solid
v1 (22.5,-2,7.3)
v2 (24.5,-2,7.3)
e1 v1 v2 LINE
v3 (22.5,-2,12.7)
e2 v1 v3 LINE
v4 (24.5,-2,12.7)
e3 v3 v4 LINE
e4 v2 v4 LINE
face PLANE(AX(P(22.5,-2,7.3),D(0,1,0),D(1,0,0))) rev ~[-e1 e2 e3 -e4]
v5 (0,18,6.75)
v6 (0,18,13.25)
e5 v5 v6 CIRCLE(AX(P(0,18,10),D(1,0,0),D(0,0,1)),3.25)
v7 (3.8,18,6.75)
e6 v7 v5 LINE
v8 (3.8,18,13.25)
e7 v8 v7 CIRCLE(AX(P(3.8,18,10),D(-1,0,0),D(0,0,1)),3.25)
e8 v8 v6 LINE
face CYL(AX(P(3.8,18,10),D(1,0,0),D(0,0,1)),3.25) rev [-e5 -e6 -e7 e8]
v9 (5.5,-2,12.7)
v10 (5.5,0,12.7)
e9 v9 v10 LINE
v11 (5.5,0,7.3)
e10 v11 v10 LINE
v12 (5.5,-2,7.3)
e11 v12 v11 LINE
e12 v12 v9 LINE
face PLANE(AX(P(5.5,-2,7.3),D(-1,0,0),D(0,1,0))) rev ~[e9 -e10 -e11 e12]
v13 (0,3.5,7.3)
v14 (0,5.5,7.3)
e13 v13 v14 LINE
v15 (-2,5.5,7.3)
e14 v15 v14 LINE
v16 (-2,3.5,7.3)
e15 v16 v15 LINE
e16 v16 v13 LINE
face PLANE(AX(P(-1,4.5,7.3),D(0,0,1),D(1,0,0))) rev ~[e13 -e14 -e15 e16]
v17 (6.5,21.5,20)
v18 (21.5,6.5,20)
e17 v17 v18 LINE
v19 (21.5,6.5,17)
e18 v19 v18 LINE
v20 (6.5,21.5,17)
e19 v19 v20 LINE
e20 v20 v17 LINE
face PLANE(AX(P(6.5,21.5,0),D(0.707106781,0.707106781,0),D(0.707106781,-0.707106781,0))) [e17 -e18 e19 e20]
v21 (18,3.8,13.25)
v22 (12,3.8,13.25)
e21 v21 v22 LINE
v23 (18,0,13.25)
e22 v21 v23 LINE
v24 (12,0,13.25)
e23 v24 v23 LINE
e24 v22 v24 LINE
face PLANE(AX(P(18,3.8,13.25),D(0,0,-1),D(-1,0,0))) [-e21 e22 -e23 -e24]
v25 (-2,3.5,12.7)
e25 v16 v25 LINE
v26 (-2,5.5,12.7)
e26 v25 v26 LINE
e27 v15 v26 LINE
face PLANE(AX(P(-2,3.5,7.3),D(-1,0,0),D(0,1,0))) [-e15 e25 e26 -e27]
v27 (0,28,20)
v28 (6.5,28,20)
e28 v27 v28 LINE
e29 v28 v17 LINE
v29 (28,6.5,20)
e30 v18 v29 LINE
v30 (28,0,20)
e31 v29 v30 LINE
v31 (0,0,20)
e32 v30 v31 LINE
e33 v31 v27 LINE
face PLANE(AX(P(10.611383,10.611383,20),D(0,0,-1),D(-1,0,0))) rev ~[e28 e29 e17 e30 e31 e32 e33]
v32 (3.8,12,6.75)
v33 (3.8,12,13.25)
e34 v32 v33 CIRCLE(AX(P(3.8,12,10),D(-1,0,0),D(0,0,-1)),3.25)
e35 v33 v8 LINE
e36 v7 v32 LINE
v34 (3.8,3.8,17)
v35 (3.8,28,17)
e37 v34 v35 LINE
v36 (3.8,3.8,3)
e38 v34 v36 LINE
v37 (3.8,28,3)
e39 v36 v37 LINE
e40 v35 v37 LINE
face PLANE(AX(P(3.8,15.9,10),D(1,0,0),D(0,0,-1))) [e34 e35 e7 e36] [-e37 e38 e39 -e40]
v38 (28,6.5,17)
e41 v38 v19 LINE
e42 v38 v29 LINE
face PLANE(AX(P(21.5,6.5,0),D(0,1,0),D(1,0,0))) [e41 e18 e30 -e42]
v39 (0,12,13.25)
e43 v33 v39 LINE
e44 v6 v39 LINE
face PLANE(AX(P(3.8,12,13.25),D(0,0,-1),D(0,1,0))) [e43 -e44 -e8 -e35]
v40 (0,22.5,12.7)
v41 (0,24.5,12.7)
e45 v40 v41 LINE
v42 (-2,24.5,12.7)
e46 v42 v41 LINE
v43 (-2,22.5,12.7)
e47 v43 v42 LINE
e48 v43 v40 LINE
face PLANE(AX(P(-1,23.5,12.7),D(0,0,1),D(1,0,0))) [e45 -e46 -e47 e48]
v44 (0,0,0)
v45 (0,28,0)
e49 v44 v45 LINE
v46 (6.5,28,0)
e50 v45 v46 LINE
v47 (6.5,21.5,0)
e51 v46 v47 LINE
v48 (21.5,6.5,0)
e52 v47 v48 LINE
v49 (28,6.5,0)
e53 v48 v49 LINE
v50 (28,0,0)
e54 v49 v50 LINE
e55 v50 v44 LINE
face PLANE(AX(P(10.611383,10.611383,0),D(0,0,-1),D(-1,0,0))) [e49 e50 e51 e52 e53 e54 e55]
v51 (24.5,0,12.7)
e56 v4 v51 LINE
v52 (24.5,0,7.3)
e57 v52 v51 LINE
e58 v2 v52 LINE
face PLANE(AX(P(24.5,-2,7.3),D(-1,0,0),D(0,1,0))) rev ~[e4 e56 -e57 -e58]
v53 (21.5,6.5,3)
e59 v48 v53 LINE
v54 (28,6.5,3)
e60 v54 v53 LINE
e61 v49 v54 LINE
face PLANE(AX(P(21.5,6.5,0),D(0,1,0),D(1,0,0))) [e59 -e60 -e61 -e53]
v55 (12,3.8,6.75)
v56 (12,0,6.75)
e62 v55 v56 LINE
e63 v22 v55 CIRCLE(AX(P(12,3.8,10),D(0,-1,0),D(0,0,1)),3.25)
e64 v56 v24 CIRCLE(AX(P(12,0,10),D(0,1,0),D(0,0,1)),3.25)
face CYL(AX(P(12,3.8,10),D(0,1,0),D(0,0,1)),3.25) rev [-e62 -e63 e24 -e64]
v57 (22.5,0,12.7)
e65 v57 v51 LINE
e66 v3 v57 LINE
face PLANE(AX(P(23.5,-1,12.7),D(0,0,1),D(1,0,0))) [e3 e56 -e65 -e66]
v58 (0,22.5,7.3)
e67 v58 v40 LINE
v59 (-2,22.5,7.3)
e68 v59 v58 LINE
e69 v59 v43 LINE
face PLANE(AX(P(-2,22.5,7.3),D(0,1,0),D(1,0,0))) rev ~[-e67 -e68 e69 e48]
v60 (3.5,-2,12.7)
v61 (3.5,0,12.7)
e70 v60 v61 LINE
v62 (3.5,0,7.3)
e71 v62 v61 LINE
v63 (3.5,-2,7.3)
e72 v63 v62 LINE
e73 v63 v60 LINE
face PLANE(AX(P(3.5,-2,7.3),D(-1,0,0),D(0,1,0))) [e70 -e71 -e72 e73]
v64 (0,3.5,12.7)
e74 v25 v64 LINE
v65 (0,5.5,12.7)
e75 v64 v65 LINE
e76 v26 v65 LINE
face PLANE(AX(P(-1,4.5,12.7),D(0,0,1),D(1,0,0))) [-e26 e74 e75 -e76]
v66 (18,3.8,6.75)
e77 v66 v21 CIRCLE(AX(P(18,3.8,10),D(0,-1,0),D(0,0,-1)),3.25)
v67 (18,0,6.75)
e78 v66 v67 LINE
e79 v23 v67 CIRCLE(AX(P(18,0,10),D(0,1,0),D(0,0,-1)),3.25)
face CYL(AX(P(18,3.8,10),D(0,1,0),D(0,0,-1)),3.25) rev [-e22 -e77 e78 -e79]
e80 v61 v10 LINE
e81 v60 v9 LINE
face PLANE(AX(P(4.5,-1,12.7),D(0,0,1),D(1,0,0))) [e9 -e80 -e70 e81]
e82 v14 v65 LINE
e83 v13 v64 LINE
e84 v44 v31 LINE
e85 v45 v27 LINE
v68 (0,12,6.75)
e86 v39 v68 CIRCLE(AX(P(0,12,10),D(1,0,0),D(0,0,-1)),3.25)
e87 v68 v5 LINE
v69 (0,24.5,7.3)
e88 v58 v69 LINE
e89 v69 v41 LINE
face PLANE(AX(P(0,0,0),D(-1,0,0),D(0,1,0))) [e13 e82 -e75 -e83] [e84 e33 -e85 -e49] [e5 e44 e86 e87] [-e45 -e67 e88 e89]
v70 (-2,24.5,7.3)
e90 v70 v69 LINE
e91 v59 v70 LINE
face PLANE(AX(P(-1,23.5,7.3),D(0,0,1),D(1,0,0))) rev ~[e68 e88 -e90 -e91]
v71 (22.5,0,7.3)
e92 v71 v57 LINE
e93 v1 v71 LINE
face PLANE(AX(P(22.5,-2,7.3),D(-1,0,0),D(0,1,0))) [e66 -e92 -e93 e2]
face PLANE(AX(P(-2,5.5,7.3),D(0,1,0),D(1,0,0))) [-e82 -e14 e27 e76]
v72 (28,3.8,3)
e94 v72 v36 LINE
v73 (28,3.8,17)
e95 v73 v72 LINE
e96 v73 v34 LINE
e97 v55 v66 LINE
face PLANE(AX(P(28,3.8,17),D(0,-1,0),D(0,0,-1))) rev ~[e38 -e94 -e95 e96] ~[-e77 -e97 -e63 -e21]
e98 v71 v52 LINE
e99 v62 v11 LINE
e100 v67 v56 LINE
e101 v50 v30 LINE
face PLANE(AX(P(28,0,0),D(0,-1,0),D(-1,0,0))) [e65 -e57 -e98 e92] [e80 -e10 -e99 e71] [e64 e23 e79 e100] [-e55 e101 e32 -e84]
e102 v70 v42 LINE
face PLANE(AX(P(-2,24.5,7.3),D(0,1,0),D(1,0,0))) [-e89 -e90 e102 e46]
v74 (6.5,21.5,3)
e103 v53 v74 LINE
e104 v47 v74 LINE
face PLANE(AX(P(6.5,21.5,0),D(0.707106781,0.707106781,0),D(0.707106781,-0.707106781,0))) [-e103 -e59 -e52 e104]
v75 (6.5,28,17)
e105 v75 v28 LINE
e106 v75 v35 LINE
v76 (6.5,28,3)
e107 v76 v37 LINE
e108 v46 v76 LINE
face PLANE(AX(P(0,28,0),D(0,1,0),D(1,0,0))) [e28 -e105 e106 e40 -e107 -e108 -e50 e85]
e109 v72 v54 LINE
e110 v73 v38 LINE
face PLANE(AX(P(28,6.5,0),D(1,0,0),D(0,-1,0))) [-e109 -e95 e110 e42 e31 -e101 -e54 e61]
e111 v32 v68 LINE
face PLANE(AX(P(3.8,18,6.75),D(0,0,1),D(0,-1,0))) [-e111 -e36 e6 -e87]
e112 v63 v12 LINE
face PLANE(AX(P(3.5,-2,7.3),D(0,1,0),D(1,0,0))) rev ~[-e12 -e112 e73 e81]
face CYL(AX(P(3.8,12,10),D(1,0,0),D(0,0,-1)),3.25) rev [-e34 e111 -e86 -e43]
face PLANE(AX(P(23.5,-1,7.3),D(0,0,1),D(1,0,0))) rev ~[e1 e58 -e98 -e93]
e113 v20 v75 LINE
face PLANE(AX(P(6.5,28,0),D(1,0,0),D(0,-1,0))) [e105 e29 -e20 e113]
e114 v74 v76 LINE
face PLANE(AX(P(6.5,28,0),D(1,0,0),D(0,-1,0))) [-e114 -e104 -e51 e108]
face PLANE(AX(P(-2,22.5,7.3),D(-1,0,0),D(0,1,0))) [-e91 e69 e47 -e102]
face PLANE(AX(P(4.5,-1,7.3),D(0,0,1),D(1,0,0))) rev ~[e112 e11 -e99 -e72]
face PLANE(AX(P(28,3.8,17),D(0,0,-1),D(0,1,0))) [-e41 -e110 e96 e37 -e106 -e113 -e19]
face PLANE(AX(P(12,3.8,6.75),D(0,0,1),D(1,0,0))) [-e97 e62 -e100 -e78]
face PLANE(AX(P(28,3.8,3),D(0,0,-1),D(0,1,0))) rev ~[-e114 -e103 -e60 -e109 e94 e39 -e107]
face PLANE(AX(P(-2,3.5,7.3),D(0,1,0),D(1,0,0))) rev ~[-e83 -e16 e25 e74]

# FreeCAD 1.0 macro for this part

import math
import FreeCAD as App
import Part
import Sketcher

V = App.Vector
Q = App.Units.Quantity


def add_polygon(sketch, points):
    """Adds a closed chain of lines whose ends are joined by coincident constraints."""
    first, n = sketch.GeometryCount, len(points)
    for a, b in zip(points, points[1:] + points[:1]):
        sketch.addGeometry(Part.LineSegment(App.Vector(*a, 0), App.Vector(*b, 0)), False)
    for i in range(n):
        sketch.addConstraint(Sketcher.Constraint("Coincident", first + i, 2, first + (i + 1) % n, 1))

doc = App.newDocument("Part")
params = doc.addObject("Spreadsheet::Sheet", "Params")
for row, (alias, value) in enumerate([
    ("sketch1_width", "28 mm"),
    ("sketch1_width2", "6.5 mm"),
    ("pad1_length", "20 mm"),
    ("sketch2_height", "14 mm"),
    ("sketch2_width", "24.2 mm"),
    ("pocket1_length", "24.2 mm"),
    ("sketch3_width", "6 mm"),
    ("sketch3_radius", "3.25 mm"),
    ("sketch4_width", "6 mm"),
    ("sketch4_radius", "3.25 mm"),
    ("sketch5_width", "2 mm"),
    ("pad2_length", "2.7 mm"),
    ("pad2_length2", "2.7 mm"),
], start=1):
    params.set(f"A{row}", alias)
    params.set(f"B{row}", "=" + value)
    params.setAlias(f"B{row}", alias)

body = doc.addObject("PartDesign::Body", "Body")

# Sketch on XY plane
sketch1 = body.newObject("Sketcher::SketchObject", "Sketch")
sketch1.AttachmentSupport = (doc.getObject("XY_Plane"), [""])
sketch1.MapMode = "FlatFace"
add_polygon(sketch1, [(0, 28), (0, 0), (28, 0), (28, 6.5), (21.5, 6.5), (6.5, 21.5), (6.5, 28)])  # lines 0-6
sketch1.addConstraint([
    Sketcher.Constraint("Vertical", 0),
    Sketcher.Constraint("Horizontal", 1),
    Sketcher.Constraint("Vertical", 2),
    Sketcher.Constraint("Horizontal", 3),
    Sketcher.Constraint("Vertical", 5),
    Sketcher.Constraint("Horizontal", 6),
    Sketcher.Constraint("Coincident", 0, 2, -1, 1),
    Sketcher.Constraint("Equal", 3, 6),
    Sketcher.Constraint("Equal", 1, 0),
    Sketcher.Constraint("Equal", 6, 2),
    Sketcher.Constraint("Equal", 2, 5),
    Sketcher.Constraint("DistanceX", 1, 1, 1, 2, Q("28 mm")),
    Sketcher.Constraint("DistanceX", 3, 2, 3, 1, Q("6.5 mm")),
])
sketch1.setExpression("Constraints[18]", "Params.sketch1_width")
sketch1.setExpression("Constraints[19]", "Params.sketch1_width2")
pad1 = body.newObject("PartDesign::Pad", "Pad")
pad1.Profile = sketch1
pad1.setExpression("Length", "Params.pad1_length")

# Sketch on YZ plane
sketch2 = body.newObject("Sketcher::SketchObject", "Sketch001")
sketch2.AttachmentSupport = (doc.getObject("YZ_Plane"), [""])
sketch2.MapMode = "FlatFace"
sketch2.AttachmentOffset = App.Placement(V(0, 0, 28), App.Rotation())
add_polygon(sketch2, [(28, 17), (3.8, 17), (3.8, 3), (28, 3)])  # lines 0-3
sketch2.addConstraint([
    Sketcher.Constraint("Horizontal", 0),
    Sketcher.Constraint("Vertical", 1),
    Sketcher.Constraint("Horizontal", 2),
    Sketcher.Constraint("Vertical", 3),
    Sketcher.Constraint("DistanceY", 1, 2, 1, 1, Q("14 mm")),
    Sketcher.Constraint("DistanceX", 0, 2, 0, 1, Q("24.2 mm")),
    Sketcher.Constraint("DistanceY", -1, 1, 0, 2, Q("17 mm")),
    Sketcher.Constraint("DistanceX", -1, 1, 2, 2, Q("28 mm")),
])
sketch2.setExpression("Constraints[8]", "Params.sketch2_height")
sketch2.setExpression("Constraints[9]", "Params.sketch2_width")
pocket1 = body.newObject("PartDesign::Pocket", "Pocket")
pocket1.Profile = sketch2
pocket1.setExpression("Length", "Params.pocket1_length")

# Sketch on YZ plane
sketch3 = body.newObject("Sketcher::SketchObject", "Sketch002")
sketch3.AttachmentSupport = (doc.getObject("YZ_Plane"), [""])
sketch3.MapMode = "FlatFace"
sketch3.AttachmentOffset = App.Placement(V(0, 0, 3.8), App.Rotation())
sketch3.addGeometry([
    Part.LineSegment(V(12, 6.75, 0), V(18, 6.75, 0)),
    Part.ArcOfCircle(Part.Circle(V(18, 10, 0), V(0, 0, 1), 3.25), math.radians(-90), math.radians(90)),
    Part.LineSegment(V(18, 13.25, 0), V(12, 13.25, 0)),
    Part.ArcOfCircle(Part.Circle(V(12, 10, 0), V(0, 0, 1), 3.25), math.radians(90), math.radians(270)),
], False)
sketch3.addConstraint([
    Sketcher.Constraint("Tangent", 0, 2, 1, 1),
    Sketcher.Constraint("Tangent", 1, 2, 2, 1),
    Sketcher.Constraint("Tangent", 2, 2, 3, 1),
    Sketcher.Constraint("Tangent", 3, 2, 0, 1),
    Sketcher.Constraint("Horizontal", 0),
    Sketcher.Constraint("Horizontal", 2),
    Sketcher.Constraint("DistanceX", 0, 1, 0, 2, Q("6 mm")),
    Sketcher.Constraint("Radius", 1, Q("3.25 mm")),
    Sketcher.Constraint("DistanceX", -1, 1, 1, 3, Q("18 mm")),
    Sketcher.Constraint("DistanceY", -1, 1, 1, 3, Q("10 mm")),
])
sketch3.setExpression("Constraints[6]", "Params.sketch3_width")
sketch3.setExpression("Constraints[7]", "Params.sketch3_radius")
pocket2 = body.newObject("PartDesign::Pocket", "Pocket001")
pocket2.Profile = sketch3
pocket2.Type = "ThroughAll"

# Sketch on XZ plane
sketch4 = body.newObject("Sketcher::SketchObject", "Sketch003")
sketch4.AttachmentSupport = (doc.getObject("XZ_Plane"), [""])
sketch4.MapMode = "FlatFace"
sketch4.AttachmentOffset = App.Placement(V(0, 0, -3.8), App.Rotation())
sketch4.addGeometry([
    Part.LineSegment(V(18, 6.75, 0), V(12, 6.75, 0)),
    Part.ArcOfCircle(Part.Circle(V(12, 10, 0), V(0, 0, 1), 3.25), math.radians(90), math.radians(270)),
    Part.LineSegment(V(12, 13.25, 0), V(18, 13.25, 0)),
    Part.ArcOfCircle(Part.Circle(V(18, 10, 0), V(0, 0, 1), 3.25), math.radians(-90), math.radians(90)),
], False)
sketch4.addConstraint([
    Sketcher.Constraint("Tangent", 0, 2, 1, 2),
    Sketcher.Constraint("Tangent", 1, 1, 2, 1),
    Sketcher.Constraint("Tangent", 2, 2, 3, 2),
    Sketcher.Constraint("Tangent", 3, 1, 0, 1),
    Sketcher.Constraint("Horizontal", 0),
    Sketcher.Constraint("Horizontal", 2),
    Sketcher.Constraint("DistanceX", 0, 2, 0, 1, Q("6 mm")),
    Sketcher.Constraint("Radius", 1, Q("3.25 mm")),
    Sketcher.Constraint("DistanceX", -1, 1, 1, 3, Q("12 mm")),
    Sketcher.Constraint("DistanceY", -1, 1, 1, 3, Q("10 mm")),
])
sketch4.setExpression("Constraints[6]", "Params.sketch4_width")
sketch4.setExpression("Constraints[7]", "Params.sketch4_radius")
pocket3 = body.newObject("PartDesign::Pocket", "Pocket002")
pocket3.Profile = sketch4
pocket3.Type = "ThroughAll"
pocket3.Reversed = True

# Sketch on XY plane
sketch5 = body.newObject("Sketcher::SketchObject", "Sketch004")
sketch5.AttachmentSupport = (doc.getObject("XY_Plane"), [""])
sketch5.MapMode = "FlatFace"
sketch5.AttachmentOffset = App.Placement(V(0, 0, 10), App.Rotation())
add_polygon(sketch5, [(3.5, 0), (3.5, -2), (5.5, -2), (5.5, 0)])  # lines 0-3
add_polygon(sketch5, [(22.5, 0), (22.5, -2), (24.5, -2), (24.5, 0)])  # lines 4-7
add_polygon(sketch5, [(-2, 24.5), (-2, 22.5), (0, 22.5), (0, 24.5)])  # lines 8-11
add_polygon(sketch5, [(-2, 5.5), (-2, 3.5), (0, 3.5), (0, 5.5)])  # lines 12-15
sketch5.addConstraint([
    Sketcher.Constraint("Vertical", 0),
    Sketcher.Constraint("Horizontal", 1),
    Sketcher.Constraint("Vertical", 2),
    Sketcher.Constraint("Horizontal", 3),
    Sketcher.Constraint("Vertical", 4),
    Sketcher.Constraint("Horizontal", 5),
    Sketcher.Constraint("Vertical", 6),
    Sketcher.Constraint("Horizontal", 7),
    Sketcher.Constraint("Vertical", 8),
    Sketcher.Constraint("Horizontal", 9),
    Sketcher.Constraint("Vertical", 10),
    Sketcher.Constraint("Horizontal", 11),
    Sketcher.Constraint("Vertical", 12),
    Sketcher.Constraint("Horizontal", 13),
    Sketcher.Constraint("Vertical", 14),
    Sketcher.Constraint("Horizontal", 15),
    Sketcher.Constraint("PointOnObject", 2, 2, -1),
    Sketcher.Constraint("PointOnObject", 6, 2, -1),
    Sketcher.Constraint("PointOnObject", 9, 2, -2),
    Sketcher.Constraint("PointOnObject", 13, 2, -2),
    Sketcher.Constraint("Horizontal", 1, 2, 4, 2),
    Sketcher.Constraint("Vertical", 11, 2, 12, 2),
    Sketcher.Constraint("Equal", 3, 5),
    Sketcher.Constraint("Equal", 7, 9),
    Sketcher.Constraint("Equal", 15, 0),
    Sketcher.Constraint("Equal", 6, 8),
    Sketcher.Constraint("Equal", 10, 12),
    Sketcher.Constraint("DistanceX", 1, 1, 1, 2, Q("2 mm")),
    Sketcher.Constraint("DistanceX", 1, 2, 4, 2, Q("17 mm")),
    Sketcher.Constraint("DistanceY", 12, 2, 8, 2, Q("19 mm")),
    Sketcher.Constraint("DistanceX", -1, 1, 0, 2, Q("3.5 mm")),
    Sketcher.Constraint("DistanceY", -1, 1, 8, 2, Q("22.5 mm")),
])
sketch5.setExpression("Constraints[43]", "Params.sketch5_width")
pad2 = body.newObject("PartDesign::Pad", "Pad001")
pad2.Profile = sketch5
pad2.Type = "TwoLengths"
pad2.setExpression("Length", "Params.pad2_length")
pad2.setExpression("Length2", "Params.pad2_length2")

doc.recompute()
